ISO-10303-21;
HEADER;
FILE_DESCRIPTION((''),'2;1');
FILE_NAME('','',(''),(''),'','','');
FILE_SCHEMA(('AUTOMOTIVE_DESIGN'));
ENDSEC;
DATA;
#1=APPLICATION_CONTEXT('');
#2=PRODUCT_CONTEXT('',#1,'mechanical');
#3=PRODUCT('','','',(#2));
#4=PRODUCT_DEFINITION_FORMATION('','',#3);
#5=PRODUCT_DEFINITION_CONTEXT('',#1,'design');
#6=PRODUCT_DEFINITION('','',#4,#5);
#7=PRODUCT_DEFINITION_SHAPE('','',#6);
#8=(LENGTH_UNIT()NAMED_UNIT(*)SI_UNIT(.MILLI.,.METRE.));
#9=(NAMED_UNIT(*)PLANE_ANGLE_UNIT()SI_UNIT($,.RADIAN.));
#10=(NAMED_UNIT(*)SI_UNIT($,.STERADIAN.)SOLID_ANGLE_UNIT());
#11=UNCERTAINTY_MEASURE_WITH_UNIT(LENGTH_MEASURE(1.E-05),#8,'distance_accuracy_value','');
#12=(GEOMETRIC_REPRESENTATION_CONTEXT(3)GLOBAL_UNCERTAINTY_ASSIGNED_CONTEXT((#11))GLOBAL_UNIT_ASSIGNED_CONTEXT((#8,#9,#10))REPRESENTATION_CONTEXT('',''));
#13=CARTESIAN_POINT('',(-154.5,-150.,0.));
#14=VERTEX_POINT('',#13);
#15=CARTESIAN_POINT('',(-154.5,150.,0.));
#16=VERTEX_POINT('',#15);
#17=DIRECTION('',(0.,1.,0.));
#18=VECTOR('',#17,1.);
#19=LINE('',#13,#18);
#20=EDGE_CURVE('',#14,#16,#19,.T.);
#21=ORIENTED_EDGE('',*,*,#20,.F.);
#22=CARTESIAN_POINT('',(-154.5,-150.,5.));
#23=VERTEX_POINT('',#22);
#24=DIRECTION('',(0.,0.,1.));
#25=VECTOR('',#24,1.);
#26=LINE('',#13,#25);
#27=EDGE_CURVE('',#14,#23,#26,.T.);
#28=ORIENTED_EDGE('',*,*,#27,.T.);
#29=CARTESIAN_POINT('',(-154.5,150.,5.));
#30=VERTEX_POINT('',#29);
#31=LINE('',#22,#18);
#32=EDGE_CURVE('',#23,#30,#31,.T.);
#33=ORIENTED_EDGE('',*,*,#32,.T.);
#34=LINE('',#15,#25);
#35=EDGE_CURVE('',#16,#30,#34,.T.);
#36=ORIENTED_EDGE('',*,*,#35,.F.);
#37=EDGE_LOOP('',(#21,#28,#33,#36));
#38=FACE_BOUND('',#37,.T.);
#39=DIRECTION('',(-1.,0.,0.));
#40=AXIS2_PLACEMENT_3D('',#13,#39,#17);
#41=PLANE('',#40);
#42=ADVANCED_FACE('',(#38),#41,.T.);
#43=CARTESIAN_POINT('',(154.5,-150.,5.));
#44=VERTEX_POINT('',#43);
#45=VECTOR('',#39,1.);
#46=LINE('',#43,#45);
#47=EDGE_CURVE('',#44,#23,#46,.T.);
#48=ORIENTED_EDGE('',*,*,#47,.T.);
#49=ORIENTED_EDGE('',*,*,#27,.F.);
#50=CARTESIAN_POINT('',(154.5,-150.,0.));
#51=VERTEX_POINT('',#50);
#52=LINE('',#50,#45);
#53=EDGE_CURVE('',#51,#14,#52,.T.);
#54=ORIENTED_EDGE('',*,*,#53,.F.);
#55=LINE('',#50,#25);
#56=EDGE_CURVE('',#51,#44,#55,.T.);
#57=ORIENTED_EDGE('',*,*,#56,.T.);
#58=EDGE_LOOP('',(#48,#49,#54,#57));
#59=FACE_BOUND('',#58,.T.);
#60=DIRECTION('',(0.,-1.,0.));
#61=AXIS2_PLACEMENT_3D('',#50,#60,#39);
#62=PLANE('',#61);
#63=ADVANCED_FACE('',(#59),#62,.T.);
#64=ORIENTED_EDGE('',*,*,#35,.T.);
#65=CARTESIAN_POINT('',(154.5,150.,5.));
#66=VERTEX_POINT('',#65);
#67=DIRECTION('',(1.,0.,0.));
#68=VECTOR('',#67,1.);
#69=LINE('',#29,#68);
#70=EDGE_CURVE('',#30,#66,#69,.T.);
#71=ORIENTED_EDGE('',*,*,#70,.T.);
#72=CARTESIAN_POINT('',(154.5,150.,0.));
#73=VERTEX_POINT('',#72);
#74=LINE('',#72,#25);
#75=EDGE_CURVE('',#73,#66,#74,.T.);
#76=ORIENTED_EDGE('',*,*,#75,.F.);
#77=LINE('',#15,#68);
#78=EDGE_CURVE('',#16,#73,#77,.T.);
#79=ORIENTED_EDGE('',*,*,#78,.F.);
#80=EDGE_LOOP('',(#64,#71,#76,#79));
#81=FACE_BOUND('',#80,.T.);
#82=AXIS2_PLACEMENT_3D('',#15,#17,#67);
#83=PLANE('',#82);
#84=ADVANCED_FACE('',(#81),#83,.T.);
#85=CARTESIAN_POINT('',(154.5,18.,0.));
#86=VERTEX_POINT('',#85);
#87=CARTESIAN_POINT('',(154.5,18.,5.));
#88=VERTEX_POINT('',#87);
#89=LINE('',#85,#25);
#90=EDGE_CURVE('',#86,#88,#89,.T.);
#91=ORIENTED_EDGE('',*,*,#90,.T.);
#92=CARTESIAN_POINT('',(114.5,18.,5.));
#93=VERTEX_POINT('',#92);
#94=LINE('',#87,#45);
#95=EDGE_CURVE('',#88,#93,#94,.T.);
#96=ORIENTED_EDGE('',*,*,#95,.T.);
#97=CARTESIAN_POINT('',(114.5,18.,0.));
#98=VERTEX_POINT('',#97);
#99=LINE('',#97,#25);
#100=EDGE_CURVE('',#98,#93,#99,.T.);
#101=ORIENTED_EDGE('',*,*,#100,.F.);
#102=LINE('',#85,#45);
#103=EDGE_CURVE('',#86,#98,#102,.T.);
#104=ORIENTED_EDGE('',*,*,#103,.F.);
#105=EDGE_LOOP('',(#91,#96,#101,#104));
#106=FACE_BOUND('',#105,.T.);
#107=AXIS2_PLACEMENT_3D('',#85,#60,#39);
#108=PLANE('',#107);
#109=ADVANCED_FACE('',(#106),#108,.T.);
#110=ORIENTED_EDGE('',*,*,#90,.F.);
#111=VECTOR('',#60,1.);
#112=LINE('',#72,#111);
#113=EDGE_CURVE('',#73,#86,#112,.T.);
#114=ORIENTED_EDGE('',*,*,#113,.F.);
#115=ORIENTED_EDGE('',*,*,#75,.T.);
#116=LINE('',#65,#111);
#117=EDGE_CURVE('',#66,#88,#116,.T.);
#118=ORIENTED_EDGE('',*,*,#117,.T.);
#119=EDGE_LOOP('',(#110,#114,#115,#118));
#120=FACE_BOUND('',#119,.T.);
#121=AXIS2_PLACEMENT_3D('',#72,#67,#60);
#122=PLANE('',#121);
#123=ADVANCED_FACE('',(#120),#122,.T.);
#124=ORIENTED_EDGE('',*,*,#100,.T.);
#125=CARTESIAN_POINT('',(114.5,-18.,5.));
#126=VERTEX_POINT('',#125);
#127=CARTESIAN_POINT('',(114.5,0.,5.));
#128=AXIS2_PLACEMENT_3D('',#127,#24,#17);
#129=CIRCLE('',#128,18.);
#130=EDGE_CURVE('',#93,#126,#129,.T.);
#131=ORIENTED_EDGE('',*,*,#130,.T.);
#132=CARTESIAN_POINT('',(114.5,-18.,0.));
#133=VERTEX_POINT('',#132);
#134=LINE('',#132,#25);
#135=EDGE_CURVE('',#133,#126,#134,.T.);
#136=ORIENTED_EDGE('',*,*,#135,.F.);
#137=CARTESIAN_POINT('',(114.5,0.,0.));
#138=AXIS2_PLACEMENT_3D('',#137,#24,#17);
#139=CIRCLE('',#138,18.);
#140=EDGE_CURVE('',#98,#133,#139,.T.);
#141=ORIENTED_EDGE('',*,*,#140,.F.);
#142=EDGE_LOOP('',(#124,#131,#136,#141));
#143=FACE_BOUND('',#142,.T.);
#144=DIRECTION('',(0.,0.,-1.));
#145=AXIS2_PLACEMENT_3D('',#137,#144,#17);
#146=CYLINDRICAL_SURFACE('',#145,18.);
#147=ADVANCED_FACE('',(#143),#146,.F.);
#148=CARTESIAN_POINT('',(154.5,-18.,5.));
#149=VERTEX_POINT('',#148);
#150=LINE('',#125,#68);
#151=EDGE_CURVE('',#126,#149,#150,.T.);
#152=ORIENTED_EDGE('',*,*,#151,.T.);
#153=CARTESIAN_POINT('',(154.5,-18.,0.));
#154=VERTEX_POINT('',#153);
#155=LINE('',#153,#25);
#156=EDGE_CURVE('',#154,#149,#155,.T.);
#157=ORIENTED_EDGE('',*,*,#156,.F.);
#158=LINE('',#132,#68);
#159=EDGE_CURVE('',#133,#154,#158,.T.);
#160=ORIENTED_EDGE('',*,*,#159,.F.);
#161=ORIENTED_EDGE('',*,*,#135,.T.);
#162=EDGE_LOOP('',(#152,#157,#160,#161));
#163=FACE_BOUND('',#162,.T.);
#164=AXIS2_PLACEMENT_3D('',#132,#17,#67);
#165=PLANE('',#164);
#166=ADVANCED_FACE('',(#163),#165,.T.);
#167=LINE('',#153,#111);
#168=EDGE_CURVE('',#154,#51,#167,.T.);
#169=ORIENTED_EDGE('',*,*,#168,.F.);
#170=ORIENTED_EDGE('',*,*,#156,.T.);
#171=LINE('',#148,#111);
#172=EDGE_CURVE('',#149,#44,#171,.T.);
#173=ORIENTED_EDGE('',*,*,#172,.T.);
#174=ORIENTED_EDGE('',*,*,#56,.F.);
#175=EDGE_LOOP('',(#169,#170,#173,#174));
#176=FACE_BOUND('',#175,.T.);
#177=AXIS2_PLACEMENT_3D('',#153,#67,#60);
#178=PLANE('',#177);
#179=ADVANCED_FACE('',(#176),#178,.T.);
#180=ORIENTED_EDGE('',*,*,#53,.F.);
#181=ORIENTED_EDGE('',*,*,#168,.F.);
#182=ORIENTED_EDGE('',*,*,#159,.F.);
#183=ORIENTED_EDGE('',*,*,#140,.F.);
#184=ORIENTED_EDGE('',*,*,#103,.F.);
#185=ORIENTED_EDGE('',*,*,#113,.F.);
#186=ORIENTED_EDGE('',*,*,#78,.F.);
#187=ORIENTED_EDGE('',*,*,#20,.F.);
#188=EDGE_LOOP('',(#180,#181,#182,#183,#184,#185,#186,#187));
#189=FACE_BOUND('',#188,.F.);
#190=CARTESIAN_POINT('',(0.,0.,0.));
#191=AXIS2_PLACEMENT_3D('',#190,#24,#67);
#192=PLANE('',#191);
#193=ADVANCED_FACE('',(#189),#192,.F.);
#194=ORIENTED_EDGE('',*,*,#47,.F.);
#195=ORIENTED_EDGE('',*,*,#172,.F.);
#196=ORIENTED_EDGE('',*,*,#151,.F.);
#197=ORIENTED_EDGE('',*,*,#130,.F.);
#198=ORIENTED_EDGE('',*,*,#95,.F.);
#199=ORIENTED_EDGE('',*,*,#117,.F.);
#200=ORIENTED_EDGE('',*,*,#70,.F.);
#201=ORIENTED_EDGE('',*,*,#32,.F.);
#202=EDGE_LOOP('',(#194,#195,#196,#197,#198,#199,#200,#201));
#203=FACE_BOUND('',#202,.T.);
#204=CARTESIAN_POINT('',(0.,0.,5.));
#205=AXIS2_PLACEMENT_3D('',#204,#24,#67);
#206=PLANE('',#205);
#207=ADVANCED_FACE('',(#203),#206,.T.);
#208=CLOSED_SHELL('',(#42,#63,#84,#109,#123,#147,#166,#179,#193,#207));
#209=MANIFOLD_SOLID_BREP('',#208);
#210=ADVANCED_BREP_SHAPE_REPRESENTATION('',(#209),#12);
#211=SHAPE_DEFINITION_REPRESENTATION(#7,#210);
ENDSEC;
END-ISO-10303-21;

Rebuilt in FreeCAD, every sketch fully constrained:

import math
import FreeCAD as App
import Part
import Sketcher

V = App.Vector
Q = App.Units.Quantity

doc = App.newDocument("Part")
body = doc.addObject("PartDesign::Body", "Body")

# Sketch on XY plane
sketch1 = doc.addObject("Sketcher::SketchObject", "Sketch")
body.addObject(sketch1)
sketch1.AttachmentSupport = (doc.XY_Plane, [""])
sketch1.MapMode = "FlatFace"
sketch1.addGeometry(Part.LineSegment(V(154, 150, 0), V(-154, 150, 0)), False)
sketch1.addGeometry(Part.LineSegment(V(-154, 150, 0), V(-154, -150, 0)), False)
sketch1.addGeometry(Part.LineSegment(V(-154, -150, 0), V(154, -150, 0)), False)
sketch1.addGeometry(Part.LineSegment(V(154, -150, 0), V(154, -18, 0)), False)
sketch1.addGeometry(Part.LineSegment(V(154, -18, 0), V(114, -18, 0)), False)
sketch1.addGeometry(Part.ArcOfCircle(Part.Circle(V(114, 0, 0), V(0, 0, 1), 18), math.radians(90), math.radians(270)), False)
sketch1.addGeometry(Part.LineSegment(V(114, 18, 0), V(154, 18, 0)), False)
sketch1.addGeometry(Part.LineSegment(V(154, 18, 0), V(154, 150, 0)), False)
sketch1.addConstraint(Sketcher.Constraint("Coincident", 0, 2, 1, 1))
sketch1.addConstraint(Sketcher.Constraint("Coincident", 1, 2, 2, 1))
sketch1.addConstraint(Sketcher.Constraint("Coincident", 2, 2, 3, 1))
sketch1.addConstraint(Sketcher.Constraint("Coincident", 3, 2, 4, 1))
sketch1.addConstraint(Sketcher.Constraint("Tangent", 4, 2, 5, 2))
sketch1.addConstraint(Sketcher.Constraint("Tangent", 5, 1, 6, 1))
sketch1.addConstraint(Sketcher.Constraint("Coincident", 6, 2, 7, 1))
sketch1.addConstraint(Sketcher.Constraint("Coincident", 7, 2, 0, 1))
sketch1.addConstraint(Sketcher.Constraint("Horizontal", 0))
sketch1.addConstraint(Sketcher.Constraint("Vertical", 1))
sketch1.addConstraint(Sketcher.Constraint("Horizontal", 2))
sketch1.addConstraint(Sketcher.Constraint("Vertical", 3))
sketch1.addConstraint(Sketcher.Constraint("Horizontal", 4))
sketch1.addConstraint(Sketcher.Constraint("Horizontal", 6))
sketch1.addConstraint(Sketcher.Constraint("Vertical", 7))
sketch1.addConstraint(Sketcher.Constraint("Symmetric", 0, 2, 2, 2, -1, 1))
sketch1.addConstraint(Sketcher.Constraint("Symmetric", 3, 2, 6, 2, -1))
sketch1.addConstraint(Sketcher.Constraint("Radius", 5, Q("18 mm")))
sketch1.addConstraint(Sketcher.Constraint("DistanceX", 0, 2, 0, 1, Q("309 mm")))
sketch1.addConstraint(Sketcher.Constraint("DistanceX", 4, 2, 4, 1, Q("40 mm")))
sketch1.addConstraint(Sketcher.Constraint("DistanceY", 1, 2, 1, 1, Q("300 mm")))
pad1 = doc.addObject("PartDesign::Pad", "Pad")
body.addObject(pad1)
pad1.Profile = sketch1
pad1.Length = 5

doc.recompute()
